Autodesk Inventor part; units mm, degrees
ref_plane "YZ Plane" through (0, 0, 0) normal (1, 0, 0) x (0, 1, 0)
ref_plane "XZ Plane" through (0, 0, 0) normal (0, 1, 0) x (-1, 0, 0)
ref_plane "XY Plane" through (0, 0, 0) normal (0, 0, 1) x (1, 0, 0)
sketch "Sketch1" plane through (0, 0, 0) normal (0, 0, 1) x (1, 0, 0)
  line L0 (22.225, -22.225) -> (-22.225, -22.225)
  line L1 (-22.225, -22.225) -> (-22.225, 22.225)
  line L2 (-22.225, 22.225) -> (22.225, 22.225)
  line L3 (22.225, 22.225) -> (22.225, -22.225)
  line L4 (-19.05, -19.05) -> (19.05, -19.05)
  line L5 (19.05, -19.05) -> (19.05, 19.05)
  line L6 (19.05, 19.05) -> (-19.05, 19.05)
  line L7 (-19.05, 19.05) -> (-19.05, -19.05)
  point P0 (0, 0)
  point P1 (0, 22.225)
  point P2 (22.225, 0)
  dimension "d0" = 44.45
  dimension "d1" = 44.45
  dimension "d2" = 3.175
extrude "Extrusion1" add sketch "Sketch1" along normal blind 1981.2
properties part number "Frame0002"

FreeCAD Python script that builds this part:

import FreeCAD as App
import Part
import Sketcher
Q = App.Units.Quantity


def add_polygon(sketch, points):
    """Adds a closed chain of lines whose ends are joined by coincident constraints."""
    first, n = sketch.GeometryCount, len(points)
    for a, b in zip(points, points[1:] + points[:1]):
        sketch.addGeometry(Part.LineSegment(App.Vector(*a, 0), App.Vector(*b, 0)), False)
    for i in range(n):
        sketch.addConstraint(Sketcher.Constraint("Coincident", first + i, 2, first + (i + 1) % n, 1))

doc = App.newDocument("Part")
body = doc.addObject("PartDesign::Body", "Body")

# Sketch on XY plane
sketch1 = doc.addObject("Sketcher::SketchObject", "Sketch")
body.addObject(sketch1)
sketch1.AttachmentSupport = (doc.XY_Plane, [""])
sketch1.MapMode = "FlatFace"
add_polygon(sketch1, [(-22.225, -22.225), (22.225, -22.225), (22.225, 22.225), (-22.225, 22.225)])  # lines 0-3
add_polygon(sketch1, [(19.05, -19.05), (-19.05, -19.05), (-19.05, 19.05), (19.05, 19.05)])  # lines 4-7
sketch1.addConstraint([
    Sketcher.Constraint("Horizontal", 0),
    Sketcher.Constraint("Vertical", 1),
    Sketcher.Constraint("Horizontal", 2),
    Sketcher.Constraint("Vertical", 3),
    Sketcher.Constraint("Horizontal", 4),
    Sketcher.Constraint("Vertical", 5),
    Sketcher.Constraint("Horizontal", 6),
    Sketcher.Constraint("Vertical", 7),
    Sketcher.Constraint("Symmetric", 0, 2, 2, 2, -1, 1),
    Sketcher.Constraint("Symmetric", 4, 2, 6, 2, -1, 1),
    Sketcher.Constraint("Equal", 2, 1),
    Sketcher.Constraint("Equal", 6, 5),
    Sketcher.Constraint("DistanceX", 0, 1, 0, 2, Q("1.75 in")),
    Sketcher.Constraint("DistanceX", 4, 2, 4, 1, Q("1.5 in")),
])
pad1 = doc.addObject("PartDesign::Pad", "Pad")
body.addObject(pad1)
pad1.Profile = sketch1
pad1.Length = Q("78 in")

doc.recompute()
